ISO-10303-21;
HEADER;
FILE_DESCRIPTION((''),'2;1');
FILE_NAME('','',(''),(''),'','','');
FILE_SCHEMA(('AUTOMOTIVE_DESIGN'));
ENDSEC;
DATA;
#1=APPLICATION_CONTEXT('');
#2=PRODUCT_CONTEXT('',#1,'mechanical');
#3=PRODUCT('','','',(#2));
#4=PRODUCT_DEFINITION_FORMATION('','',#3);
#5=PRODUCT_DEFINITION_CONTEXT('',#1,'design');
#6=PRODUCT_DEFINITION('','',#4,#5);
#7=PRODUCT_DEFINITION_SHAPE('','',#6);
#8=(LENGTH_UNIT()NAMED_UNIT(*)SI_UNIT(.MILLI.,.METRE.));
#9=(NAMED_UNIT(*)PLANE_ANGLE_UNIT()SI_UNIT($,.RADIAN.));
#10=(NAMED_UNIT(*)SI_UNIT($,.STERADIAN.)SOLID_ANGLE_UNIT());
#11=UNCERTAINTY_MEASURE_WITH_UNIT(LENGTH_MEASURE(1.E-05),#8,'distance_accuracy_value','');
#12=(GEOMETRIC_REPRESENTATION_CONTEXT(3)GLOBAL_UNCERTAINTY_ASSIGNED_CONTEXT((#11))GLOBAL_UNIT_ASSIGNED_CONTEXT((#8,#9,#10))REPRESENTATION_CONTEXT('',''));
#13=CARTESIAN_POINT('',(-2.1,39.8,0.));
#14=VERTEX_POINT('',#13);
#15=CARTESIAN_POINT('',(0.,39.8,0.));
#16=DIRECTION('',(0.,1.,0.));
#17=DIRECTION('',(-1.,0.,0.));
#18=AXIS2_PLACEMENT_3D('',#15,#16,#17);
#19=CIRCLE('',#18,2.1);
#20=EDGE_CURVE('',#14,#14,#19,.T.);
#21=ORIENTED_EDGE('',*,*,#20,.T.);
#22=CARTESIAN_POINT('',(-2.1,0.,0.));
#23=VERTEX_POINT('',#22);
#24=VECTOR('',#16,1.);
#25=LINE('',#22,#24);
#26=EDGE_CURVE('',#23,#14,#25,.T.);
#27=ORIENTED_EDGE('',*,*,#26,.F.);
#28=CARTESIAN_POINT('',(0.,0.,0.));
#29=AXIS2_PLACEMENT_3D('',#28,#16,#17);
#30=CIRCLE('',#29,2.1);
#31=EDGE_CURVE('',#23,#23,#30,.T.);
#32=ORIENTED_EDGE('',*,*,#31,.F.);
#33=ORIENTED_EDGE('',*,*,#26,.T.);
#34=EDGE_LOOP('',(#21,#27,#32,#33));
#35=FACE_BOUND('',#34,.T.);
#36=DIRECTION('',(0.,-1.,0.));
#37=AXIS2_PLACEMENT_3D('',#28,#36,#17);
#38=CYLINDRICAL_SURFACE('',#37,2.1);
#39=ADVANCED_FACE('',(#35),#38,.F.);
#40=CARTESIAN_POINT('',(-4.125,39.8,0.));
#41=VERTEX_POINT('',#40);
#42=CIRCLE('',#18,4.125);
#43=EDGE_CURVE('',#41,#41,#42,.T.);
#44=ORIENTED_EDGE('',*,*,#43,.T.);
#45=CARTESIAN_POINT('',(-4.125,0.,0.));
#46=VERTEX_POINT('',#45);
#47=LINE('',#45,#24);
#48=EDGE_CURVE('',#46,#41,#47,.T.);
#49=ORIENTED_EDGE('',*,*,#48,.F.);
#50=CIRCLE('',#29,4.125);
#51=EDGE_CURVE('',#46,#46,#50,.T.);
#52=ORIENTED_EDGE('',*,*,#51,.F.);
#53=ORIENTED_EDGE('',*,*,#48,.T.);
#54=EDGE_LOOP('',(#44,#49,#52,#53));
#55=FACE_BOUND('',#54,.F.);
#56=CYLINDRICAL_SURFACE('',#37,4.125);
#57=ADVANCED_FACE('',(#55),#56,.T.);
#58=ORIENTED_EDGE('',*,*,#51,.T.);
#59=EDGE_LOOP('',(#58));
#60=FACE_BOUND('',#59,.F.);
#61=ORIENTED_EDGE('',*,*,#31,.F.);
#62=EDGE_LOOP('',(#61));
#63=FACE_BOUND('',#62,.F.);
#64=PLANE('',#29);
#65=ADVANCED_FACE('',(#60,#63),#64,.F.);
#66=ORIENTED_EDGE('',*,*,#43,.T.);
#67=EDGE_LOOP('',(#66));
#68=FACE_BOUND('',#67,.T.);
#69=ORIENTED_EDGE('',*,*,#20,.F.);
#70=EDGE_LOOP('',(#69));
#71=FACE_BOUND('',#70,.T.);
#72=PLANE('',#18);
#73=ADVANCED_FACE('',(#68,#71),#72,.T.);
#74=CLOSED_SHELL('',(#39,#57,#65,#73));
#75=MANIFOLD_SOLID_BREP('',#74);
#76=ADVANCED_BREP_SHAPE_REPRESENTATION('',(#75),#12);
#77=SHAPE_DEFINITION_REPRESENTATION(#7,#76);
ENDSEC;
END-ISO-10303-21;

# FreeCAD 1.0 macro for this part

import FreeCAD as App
import Part
import Sketcher

V = App.Vector

doc = App.newDocument("Part")
params = doc.addObject("Spreadsheet::Sheet", "Params")
for row, (alias, value) in enumerate([
    ("sketch1_diameter", "4.2 mm"),
    ("sketch1_diameter2", "8.25 mm"),
    ("pad1_length", "39.8 mm"),
], start=1):
    params.set(f"A{row}", alias)
    params.set(f"B{row}", "=" + value)
    params.setAlias(f"B{row}", alias)

body = doc.addObject("PartDesign::Body", "Body")

# Sketch on XZ plane
sketch1 = body.newObject("Sketcher::SketchObject", "Sketch")
sketch1.AttachmentSupport = (doc.getObject("XZ_Plane"), [""])
sketch1.MapMode = "FlatFace"
sketch1.addGeometry([
    Part.Circle(V(0, 0, 0), V(0, 0, 1), 4.1),
    Part.Circle(V(0, 0, 0), V(0, 0, 1), 2.1),
], False)
sketch1.addConstraint([
    Sketcher.Constraint("Coincident", 0, 3, -1, 1),
    Sketcher.Constraint("Coincident", 1, 3, -1, 1),
    Sketcher.Constraint("Diameter", 1, 4.2),
    Sketcher.Constraint("Diameter", 0, 8.25),
])
sketch1.setExpression("Constraints[2]", "Params.sketch1_diameter")
sketch1.setExpression("Constraints[3]", "Params.sketch1_diameter2")
pad1 = body.newObject("PartDesign::Pad", "Pad")
pad1.Profile = sketch1
pad1.setExpression("Length", "Params.pad1_length")
pad1.Reversed = True

doc.recompute()
